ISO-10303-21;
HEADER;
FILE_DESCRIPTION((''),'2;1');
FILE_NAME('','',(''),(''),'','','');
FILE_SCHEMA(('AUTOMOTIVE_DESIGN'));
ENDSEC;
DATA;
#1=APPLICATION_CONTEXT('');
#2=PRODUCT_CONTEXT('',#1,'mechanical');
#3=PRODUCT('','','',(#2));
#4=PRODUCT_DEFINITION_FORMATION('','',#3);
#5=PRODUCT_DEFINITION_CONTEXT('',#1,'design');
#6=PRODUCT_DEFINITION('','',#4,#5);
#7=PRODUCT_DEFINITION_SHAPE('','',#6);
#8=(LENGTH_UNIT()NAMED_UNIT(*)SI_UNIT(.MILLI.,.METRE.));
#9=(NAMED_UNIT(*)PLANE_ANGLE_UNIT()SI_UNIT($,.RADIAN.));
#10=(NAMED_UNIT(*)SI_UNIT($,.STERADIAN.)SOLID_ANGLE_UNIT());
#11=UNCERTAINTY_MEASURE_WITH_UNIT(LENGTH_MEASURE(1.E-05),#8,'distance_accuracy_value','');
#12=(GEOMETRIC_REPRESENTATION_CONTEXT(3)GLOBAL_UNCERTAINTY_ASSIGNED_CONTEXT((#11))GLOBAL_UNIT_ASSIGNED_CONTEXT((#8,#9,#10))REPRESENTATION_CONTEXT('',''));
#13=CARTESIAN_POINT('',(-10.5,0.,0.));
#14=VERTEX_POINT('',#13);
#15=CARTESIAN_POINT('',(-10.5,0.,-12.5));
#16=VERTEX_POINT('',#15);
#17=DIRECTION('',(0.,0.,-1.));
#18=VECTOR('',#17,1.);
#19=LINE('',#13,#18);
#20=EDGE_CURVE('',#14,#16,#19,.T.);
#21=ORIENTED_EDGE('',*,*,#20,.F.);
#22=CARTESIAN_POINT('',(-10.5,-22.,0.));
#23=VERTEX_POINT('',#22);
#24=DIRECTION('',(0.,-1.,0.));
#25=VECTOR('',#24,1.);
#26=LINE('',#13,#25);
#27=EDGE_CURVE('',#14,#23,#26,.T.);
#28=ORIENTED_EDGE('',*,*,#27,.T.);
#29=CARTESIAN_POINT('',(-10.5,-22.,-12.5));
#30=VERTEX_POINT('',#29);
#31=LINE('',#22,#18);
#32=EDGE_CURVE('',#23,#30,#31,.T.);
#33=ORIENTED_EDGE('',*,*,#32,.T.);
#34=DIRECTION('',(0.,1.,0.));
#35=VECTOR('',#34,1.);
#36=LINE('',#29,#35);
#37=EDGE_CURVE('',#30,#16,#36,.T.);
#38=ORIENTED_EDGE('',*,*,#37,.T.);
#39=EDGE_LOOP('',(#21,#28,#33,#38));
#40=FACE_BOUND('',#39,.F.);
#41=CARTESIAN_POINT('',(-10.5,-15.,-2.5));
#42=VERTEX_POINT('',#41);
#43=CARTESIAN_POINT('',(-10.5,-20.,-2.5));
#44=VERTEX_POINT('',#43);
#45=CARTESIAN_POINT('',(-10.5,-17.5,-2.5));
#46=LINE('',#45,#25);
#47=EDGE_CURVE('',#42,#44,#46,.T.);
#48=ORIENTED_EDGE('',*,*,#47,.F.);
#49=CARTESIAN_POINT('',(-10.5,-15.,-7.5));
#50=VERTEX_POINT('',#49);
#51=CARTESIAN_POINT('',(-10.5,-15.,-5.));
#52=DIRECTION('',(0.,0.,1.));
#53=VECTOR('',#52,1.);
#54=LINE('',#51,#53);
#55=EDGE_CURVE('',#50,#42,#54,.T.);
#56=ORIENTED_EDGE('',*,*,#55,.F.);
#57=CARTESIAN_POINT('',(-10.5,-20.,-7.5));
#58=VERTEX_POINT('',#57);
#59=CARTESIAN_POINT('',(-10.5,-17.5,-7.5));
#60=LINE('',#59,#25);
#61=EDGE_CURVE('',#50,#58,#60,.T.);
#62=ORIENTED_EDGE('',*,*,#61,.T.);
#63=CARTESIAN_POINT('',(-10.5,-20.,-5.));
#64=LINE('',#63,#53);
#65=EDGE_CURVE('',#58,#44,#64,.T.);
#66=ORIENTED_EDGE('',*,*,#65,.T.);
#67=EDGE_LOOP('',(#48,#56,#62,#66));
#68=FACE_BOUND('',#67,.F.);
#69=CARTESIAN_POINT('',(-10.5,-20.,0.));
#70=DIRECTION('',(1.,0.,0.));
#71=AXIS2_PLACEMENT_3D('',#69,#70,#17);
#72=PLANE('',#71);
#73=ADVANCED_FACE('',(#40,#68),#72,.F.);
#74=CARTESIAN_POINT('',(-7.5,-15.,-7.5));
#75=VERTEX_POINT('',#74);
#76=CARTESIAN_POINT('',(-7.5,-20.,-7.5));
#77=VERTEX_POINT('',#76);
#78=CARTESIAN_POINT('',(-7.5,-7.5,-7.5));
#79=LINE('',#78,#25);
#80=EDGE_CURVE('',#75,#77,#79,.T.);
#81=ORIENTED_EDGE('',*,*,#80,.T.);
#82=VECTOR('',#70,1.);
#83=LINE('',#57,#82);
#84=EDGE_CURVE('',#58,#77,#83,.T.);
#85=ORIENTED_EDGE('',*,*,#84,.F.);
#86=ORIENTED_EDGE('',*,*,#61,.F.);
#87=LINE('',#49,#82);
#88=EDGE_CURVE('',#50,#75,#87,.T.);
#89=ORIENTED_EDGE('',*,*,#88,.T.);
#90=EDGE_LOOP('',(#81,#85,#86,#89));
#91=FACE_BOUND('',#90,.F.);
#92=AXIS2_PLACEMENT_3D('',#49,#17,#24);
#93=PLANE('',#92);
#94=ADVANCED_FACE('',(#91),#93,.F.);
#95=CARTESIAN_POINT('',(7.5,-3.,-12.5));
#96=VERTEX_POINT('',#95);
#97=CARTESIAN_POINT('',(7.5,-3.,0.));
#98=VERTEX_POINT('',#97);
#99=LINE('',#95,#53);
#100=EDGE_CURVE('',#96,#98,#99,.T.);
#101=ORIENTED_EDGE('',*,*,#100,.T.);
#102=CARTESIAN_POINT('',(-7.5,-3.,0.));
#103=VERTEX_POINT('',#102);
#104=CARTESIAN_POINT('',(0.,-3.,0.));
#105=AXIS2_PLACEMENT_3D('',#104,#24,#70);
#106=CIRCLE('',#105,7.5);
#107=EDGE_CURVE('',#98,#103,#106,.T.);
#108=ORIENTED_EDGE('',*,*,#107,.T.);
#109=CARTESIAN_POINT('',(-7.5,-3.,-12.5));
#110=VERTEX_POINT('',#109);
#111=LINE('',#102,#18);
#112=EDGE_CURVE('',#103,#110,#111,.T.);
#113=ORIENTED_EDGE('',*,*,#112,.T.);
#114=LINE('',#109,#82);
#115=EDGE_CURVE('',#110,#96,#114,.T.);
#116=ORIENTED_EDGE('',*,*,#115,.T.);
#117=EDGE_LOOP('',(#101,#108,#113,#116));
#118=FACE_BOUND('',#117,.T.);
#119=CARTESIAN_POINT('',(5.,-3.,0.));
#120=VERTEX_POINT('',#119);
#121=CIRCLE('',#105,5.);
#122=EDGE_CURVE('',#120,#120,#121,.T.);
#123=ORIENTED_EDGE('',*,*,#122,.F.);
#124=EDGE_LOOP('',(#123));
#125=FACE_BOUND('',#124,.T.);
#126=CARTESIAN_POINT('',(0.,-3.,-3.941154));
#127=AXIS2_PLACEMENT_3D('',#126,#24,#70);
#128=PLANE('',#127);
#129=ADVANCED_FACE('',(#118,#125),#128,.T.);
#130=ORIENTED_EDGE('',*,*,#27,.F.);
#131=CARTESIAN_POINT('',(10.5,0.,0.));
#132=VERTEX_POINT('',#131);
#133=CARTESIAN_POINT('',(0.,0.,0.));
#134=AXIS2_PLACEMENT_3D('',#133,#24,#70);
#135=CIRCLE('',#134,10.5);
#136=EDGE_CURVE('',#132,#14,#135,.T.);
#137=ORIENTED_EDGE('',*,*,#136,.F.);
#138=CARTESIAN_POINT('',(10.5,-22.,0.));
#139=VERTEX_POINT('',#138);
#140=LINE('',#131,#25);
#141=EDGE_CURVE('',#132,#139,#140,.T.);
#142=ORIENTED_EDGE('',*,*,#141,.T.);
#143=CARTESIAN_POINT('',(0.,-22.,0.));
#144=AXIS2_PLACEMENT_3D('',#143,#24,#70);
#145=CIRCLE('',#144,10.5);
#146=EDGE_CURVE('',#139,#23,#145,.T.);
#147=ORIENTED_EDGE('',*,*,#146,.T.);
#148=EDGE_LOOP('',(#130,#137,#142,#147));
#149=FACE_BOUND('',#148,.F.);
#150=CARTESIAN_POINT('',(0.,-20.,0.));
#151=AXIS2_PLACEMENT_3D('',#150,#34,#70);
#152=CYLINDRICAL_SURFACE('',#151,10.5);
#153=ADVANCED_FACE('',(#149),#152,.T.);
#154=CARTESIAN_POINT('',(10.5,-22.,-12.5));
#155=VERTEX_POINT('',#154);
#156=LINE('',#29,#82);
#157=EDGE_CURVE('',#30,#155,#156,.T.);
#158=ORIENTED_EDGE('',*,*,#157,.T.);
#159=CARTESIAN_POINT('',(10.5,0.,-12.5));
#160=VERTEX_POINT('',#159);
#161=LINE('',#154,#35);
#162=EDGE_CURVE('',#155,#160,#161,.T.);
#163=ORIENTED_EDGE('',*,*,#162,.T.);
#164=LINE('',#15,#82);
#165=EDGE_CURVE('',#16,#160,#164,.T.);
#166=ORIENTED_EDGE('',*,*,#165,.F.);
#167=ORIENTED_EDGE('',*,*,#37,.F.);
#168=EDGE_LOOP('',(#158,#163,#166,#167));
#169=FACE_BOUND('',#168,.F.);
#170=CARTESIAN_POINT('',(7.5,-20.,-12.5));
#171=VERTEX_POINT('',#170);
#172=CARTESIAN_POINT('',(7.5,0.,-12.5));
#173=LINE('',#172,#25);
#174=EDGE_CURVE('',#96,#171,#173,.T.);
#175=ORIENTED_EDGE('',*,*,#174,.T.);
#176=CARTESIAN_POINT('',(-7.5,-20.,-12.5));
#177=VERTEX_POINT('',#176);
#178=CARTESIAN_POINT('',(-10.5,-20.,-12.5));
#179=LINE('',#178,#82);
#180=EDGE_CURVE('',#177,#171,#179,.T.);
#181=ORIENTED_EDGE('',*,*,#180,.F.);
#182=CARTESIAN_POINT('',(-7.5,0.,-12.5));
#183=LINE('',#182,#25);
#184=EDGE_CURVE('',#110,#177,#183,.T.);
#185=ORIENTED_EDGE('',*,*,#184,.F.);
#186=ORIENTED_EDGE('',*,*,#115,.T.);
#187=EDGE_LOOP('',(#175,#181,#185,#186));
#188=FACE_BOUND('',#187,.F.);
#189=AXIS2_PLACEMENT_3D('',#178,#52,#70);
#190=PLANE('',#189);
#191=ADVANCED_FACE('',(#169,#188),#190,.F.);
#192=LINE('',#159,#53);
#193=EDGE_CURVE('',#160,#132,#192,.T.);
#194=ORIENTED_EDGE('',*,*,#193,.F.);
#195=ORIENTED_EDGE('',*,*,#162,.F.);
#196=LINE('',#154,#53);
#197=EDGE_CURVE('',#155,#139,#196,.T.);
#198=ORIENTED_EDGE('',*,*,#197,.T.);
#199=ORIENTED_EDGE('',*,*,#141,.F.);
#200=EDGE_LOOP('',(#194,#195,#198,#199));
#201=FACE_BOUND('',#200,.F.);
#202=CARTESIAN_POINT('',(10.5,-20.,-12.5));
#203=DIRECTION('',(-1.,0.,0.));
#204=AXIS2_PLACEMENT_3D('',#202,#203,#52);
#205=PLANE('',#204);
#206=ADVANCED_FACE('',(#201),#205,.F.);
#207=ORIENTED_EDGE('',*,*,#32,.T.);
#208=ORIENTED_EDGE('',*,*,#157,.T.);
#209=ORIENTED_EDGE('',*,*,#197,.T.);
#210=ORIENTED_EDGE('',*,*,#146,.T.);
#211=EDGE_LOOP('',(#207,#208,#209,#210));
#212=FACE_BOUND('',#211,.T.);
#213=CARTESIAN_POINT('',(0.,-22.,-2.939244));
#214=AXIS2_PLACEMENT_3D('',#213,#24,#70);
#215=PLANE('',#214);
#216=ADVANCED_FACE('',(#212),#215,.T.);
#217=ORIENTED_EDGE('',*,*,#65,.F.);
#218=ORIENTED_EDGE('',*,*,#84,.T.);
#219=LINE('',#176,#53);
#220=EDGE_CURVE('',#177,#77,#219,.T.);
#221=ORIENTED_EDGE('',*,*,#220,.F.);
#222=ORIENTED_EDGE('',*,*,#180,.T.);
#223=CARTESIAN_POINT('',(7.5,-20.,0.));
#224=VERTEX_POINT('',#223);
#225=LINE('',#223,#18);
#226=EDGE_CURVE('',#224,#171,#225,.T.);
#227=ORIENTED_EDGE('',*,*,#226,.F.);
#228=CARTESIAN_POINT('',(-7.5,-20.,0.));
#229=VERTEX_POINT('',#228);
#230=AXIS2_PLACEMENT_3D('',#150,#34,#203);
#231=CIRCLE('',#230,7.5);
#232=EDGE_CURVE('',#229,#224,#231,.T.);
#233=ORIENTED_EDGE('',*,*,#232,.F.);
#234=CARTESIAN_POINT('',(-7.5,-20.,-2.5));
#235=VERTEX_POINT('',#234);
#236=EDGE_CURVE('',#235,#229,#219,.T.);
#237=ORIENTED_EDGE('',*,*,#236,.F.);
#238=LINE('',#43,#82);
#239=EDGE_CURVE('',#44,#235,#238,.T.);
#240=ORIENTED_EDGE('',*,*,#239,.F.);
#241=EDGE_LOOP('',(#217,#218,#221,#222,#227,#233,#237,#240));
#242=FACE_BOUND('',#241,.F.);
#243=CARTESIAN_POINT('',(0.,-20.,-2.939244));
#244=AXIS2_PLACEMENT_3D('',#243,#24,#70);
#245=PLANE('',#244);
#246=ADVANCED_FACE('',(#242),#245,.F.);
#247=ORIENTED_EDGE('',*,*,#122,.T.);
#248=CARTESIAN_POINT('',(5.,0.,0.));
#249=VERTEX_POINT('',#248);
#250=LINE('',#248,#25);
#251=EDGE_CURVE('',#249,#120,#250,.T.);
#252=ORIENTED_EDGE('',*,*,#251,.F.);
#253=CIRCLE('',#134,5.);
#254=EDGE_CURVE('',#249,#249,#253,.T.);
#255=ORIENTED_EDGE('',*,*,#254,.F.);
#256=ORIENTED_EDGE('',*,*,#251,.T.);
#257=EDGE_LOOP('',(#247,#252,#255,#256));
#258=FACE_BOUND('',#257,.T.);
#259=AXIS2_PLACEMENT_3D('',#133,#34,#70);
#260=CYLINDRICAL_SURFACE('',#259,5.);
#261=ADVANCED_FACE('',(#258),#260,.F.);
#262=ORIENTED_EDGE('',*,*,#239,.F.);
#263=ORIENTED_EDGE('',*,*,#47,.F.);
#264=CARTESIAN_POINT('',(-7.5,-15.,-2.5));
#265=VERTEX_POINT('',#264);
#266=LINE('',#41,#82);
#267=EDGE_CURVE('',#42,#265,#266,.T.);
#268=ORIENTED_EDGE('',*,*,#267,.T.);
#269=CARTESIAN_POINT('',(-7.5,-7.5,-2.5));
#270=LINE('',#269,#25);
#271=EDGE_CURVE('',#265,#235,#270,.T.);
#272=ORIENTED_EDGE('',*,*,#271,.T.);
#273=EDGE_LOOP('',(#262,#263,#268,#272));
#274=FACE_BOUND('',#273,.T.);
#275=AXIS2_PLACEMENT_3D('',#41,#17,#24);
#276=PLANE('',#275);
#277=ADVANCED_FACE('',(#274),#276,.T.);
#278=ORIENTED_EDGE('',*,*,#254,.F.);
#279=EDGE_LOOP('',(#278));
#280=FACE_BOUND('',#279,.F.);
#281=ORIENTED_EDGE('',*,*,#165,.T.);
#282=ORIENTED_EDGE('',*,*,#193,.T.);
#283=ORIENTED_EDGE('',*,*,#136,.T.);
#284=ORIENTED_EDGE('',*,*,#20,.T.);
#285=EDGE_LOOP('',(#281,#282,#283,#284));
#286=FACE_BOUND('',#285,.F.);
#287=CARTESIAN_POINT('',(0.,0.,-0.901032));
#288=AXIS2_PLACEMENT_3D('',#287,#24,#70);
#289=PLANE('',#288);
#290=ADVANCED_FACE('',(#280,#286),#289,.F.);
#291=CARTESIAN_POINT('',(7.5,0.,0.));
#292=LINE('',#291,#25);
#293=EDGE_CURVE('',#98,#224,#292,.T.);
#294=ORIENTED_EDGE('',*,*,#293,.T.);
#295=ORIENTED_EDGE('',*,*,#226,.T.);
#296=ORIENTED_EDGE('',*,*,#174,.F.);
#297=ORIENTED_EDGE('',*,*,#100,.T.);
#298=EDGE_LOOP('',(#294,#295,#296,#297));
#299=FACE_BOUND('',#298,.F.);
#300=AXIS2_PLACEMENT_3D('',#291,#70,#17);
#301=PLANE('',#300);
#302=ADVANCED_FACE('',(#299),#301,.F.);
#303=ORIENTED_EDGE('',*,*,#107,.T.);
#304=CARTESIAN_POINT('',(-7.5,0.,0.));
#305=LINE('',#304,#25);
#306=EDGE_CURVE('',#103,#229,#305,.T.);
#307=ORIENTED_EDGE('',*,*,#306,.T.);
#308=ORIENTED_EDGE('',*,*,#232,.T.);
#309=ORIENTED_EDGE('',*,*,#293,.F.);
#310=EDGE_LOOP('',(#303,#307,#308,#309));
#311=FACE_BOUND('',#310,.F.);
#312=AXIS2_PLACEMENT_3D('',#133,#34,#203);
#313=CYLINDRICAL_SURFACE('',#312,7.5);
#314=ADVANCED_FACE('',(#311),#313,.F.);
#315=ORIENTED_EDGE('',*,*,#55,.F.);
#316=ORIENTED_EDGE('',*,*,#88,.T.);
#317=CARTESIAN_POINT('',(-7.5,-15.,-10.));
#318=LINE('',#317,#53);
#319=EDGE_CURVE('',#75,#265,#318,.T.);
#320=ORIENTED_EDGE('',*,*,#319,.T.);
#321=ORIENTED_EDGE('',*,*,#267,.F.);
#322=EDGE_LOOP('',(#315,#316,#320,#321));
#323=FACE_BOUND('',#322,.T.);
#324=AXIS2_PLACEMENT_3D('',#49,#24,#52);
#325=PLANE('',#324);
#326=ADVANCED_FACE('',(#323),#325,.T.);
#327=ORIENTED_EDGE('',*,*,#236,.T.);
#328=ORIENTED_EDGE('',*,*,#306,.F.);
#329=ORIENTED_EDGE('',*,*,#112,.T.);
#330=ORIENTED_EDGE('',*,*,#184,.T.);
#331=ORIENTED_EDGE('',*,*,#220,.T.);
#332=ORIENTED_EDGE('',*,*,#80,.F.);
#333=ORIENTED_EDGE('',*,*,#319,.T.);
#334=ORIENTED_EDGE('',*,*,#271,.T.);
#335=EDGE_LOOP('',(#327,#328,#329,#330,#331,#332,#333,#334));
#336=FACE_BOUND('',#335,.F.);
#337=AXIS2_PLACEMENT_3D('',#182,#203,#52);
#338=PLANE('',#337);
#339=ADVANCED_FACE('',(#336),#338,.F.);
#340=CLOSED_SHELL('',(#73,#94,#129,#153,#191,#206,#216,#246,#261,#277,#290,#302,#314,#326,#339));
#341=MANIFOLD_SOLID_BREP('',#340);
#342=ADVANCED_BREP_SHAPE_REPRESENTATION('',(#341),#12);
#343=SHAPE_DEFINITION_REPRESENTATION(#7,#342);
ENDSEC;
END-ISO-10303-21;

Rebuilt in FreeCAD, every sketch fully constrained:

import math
import FreeCAD as App
import Part
import Sketcher
Q = App.Units.Quantity

doc = App.newDocument("Part")
body = doc.addObject("PartDesign::Body", "Body")

sketch1 = body.newObject("Sketcher::SketchObject", "Sketch")
sketch1.AttachmentSupport = (doc.getObject("XZ_Plane"), [""])
sketch1.MapMode = "FlatFace"
sketch1.addGeometry([
    Part.LineSegment(App.Vector(8, -12, 0), App.Vector(8, 0, 0)),
    Part.ArcOfCircle(Part.Circle(App.Vector(0, 0, 0), App.Vector(0, 0, 1), 8), math.radians(0), math.radians(180)),
    Part.LineSegment(App.Vector(-8, 0, 0), App.Vector(-8, -12, 0)),
    Part.LineSegment(App.Vector(-8, -12, 0), App.Vector(8, -12, 0)),
    Part.Circle(App.Vector(0, 0, 0), App.Vector(0, 0, 1), 5),
], False)
sketch1.addConstraint([
    Sketcher.Constraint("Tangent", 0, 2, 1, 1),
    Sketcher.Constraint("Tangent", 1, 2, 2, 1),
    Sketcher.Constraint("Coincident", 2, 2, 3, 1),
    Sketcher.Constraint("Coincident", 3, 2, 0, 1),
    Sketcher.Constraint("Vertical", 0),
    Sketcher.Constraint("Vertical", 2),
    Sketcher.Constraint("Horizontal", 3),
    Sketcher.Constraint("Coincident", 1, 3, -1, 1),
    Sketcher.Constraint("Coincident", 4, 3, -1, 1),
    Sketcher.Constraint("Diameter", 4, Q("10 mm")),
    Sketcher.Constraint("Radius", 1, Q("7.5 mm")),
    Sketcher.Constraint("DistanceY", 0, 1, 0, 2, Q("12.5 mm")),
])
pad1 = body.newObject("PartDesign::Pad", "Pad")
pad1.Profile = sketch1
pad1.Length = 3

sketch2 = body.newObject("Sketcher::SketchObject", "Sketch001")
sketch2.AttachmentSupport = (doc.getObject("XZ_Plane"), [""])
sketch2.MapMode = "FlatFace"
sketch2.addGeometry([
    Part.LineSegment(App.Vector(10.5, -12.5, 0), App.Vector(10.5, 0, 0)),
    Part.ArcOfCircle(Part.Circle(App.Vector(0, 0, 0), App.Vector(0, 0, 1), 10.5), math.radians(0), math.radians(180)),
    Part.LineSegment(App.Vector(-10.5, 0, 0), App.Vector(-10.5, -12.5, 0)),
    Part.LineSegment(App.Vector(-10.5, -12.5, 0), App.Vector(-7.5, -12.5, 0)),
    Part.LineSegment(App.Vector(-7.5, -12.5, 0), App.Vector(-7.5, 0, 0)),
    Part.ArcOfCircle(Part.Circle(App.Vector(0, 0, 0), App.Vector(0, 0, 1), 7.5), math.radians(0), math.radians(180)),
    Part.LineSegment(App.Vector(7.5, 0, 0), App.Vector(7.5, -12.5, 0)),
    Part.LineSegment(App.Vector(7.5, -12.5, 0), App.Vector(10.5, -12.5, 0)),
], False)
sketch2.addConstraint([
    Sketcher.Constraint("Tangent", 0, 2, 1, 1),
    Sketcher.Constraint("Tangent", 1, 2, 2, 1),
    Sketcher.Constraint("Coincident", 2, 2, 3, 1),
    Sketcher.Constraint("Coincident", 3, 2, 4, 1),
    Sketcher.Constraint("Tangent", 4, 2, 5, 2),
    Sketcher.Constraint("Tangent", 5, 1, 6, 1),
    Sketcher.Constraint("Coincident", 6, 2, 7, 1),
    Sketcher.Constraint("Coincident", 7, 2, 0, 1),
    Sketcher.Constraint("Vertical", 0),
    Sketcher.Constraint("Vertical", 2),
    Sketcher.Constraint("Horizontal", 3),
    Sketcher.Constraint("Vertical", 4),
    Sketcher.Constraint("Vertical", 6),
    Sketcher.Constraint("Horizontal", 7),
    Sketcher.Constraint("Coincident", 1, 3, -1, 1),
    Sketcher.Constraint("Coincident", 5, 3, -1, 1),
    Sketcher.Constraint("Horizontal", 3, 2, 6, 2),
    Sketcher.Constraint("Radius", 1, Q("10.5 mm")),
    Sketcher.Constraint("Radius", 5, Q("7.5 mm")),
    Sketcher.Constraint("DistanceY", 0, 1, 0, 2, Q("12.5 mm")),
])
pad2 = body.newObject("PartDesign::Pad", "Pad001")
pad2.Profile = sketch2
pad2.Length = 20

sketch3 = body.newObject("Sketcher::SketchObject", "Sketch002")
sketch3.AttachmentSupport = (doc.getObject("XZ_Plane"), [""])
sketch3.MapMode = "FlatFace"
sketch3.AttachmentOffset = App.Placement(App.Vector(0, 0, 20), App.Rotation())
sketch3.addGeometry([
    Part.LineSegment(App.Vector(10, -12, 0), App.Vector(10, 0, 0)),
    Part.ArcOfCircle(Part.Circle(App.Vector(0, 0, 0), App.Vector(0, 0, 1), 10), math.radians(0), math.radians(180)),
    Part.LineSegment(App.Vector(-10, 0, 0), App.Vector(-10, -12, 0)),
    Part.LineSegment(App.Vector(-10, -12, 0), App.Vector(10, -12, 0)),
], False)
sketch3.addConstraint([
    Sketcher.Constraint("Tangent", 0, 2, 1, 1),
    Sketcher.Constraint("Tangent", 1, 2, 2, 1),
    Sketcher.Constraint("Coincident", 2, 2, 3, 1),
    Sketcher.Constraint("Coincident", 3, 2, 0, 1),
    Sketcher.Constraint("Vertical", 0),
    Sketcher.Constraint("Vertical", 2),
    Sketcher.Constraint("Horizontal", 3),
    Sketcher.Constraint("Coincident", 1, 3, -1, 1),
    Sketcher.Constraint("Radius", 1, Q("10.5 mm")),
    Sketcher.Constraint("DistanceY", 0, 1, 0, 2, Q("12.5 mm")),
])
pad3 = body.newObject("PartDesign::Pad", "Pad002")
pad3.Profile = sketch3
pad3.Length = 2

sketch4 = body.newObject("Sketcher::SketchObject", "Sketch003")
sketch4.AttachmentSupport = (doc.getObject("YZ_Plane"), [""])
sketch4.MapMode = "FlatFace"
sketch4.AttachmentOffset = App.Placement(App.Vector(0, 0, -10.5), App.Rotation())
sketch4.addGeometry([
    Part.LineSegment(App.Vector(-15, -2, 0), App.Vector(-15, -8, 0)),
    Part.LineSegment(App.Vector(-15, -8, 0), App.Vector(-20, -8, 0)),
    Part.LineSegment(App.Vector(-20, -8, 0), App.Vector(-20, -2, 0)),
    Part.LineSegment(App.Vector(-20, -2, 0), App.Vector(-15, -2, 0)),
], False)
sketch4.addConstraint([
    Sketcher.Constraint("Coincident", 0, 2, 1, 1),
    Sketcher.Constraint("Coincident", 1, 2, 2, 1),
    Sketcher.Constraint("Coincident", 2, 2, 3, 1),
    Sketcher.Constraint("Coincident", 3, 2, 0, 1),
    Sketcher.Constraint("Vertical", 0),
    Sketcher.Constraint("Horizontal", 1),
    Sketcher.Constraint("Vertical", 2),
    Sketcher.Constraint("Horizontal", 3),
    Sketcher.Constraint("Equal", 3, 0),
    Sketcher.Constraint("DistanceX", 1, 2, 1, 1, Q("5 mm")),
    Sketcher.Constraint("DistanceX", 0, 2, -1, 1, Q("15 mm")),
    Sketcher.Constraint("DistanceY", 0, 2, -1, 1, Q("7.5 mm")),
])
pocket1 = body.newObject("PartDesign::Pocket", "Pocket")
pocket1.Profile = sketch4
pocket1.Length = 5
pocket1.Reversed = True

doc.recompute()
